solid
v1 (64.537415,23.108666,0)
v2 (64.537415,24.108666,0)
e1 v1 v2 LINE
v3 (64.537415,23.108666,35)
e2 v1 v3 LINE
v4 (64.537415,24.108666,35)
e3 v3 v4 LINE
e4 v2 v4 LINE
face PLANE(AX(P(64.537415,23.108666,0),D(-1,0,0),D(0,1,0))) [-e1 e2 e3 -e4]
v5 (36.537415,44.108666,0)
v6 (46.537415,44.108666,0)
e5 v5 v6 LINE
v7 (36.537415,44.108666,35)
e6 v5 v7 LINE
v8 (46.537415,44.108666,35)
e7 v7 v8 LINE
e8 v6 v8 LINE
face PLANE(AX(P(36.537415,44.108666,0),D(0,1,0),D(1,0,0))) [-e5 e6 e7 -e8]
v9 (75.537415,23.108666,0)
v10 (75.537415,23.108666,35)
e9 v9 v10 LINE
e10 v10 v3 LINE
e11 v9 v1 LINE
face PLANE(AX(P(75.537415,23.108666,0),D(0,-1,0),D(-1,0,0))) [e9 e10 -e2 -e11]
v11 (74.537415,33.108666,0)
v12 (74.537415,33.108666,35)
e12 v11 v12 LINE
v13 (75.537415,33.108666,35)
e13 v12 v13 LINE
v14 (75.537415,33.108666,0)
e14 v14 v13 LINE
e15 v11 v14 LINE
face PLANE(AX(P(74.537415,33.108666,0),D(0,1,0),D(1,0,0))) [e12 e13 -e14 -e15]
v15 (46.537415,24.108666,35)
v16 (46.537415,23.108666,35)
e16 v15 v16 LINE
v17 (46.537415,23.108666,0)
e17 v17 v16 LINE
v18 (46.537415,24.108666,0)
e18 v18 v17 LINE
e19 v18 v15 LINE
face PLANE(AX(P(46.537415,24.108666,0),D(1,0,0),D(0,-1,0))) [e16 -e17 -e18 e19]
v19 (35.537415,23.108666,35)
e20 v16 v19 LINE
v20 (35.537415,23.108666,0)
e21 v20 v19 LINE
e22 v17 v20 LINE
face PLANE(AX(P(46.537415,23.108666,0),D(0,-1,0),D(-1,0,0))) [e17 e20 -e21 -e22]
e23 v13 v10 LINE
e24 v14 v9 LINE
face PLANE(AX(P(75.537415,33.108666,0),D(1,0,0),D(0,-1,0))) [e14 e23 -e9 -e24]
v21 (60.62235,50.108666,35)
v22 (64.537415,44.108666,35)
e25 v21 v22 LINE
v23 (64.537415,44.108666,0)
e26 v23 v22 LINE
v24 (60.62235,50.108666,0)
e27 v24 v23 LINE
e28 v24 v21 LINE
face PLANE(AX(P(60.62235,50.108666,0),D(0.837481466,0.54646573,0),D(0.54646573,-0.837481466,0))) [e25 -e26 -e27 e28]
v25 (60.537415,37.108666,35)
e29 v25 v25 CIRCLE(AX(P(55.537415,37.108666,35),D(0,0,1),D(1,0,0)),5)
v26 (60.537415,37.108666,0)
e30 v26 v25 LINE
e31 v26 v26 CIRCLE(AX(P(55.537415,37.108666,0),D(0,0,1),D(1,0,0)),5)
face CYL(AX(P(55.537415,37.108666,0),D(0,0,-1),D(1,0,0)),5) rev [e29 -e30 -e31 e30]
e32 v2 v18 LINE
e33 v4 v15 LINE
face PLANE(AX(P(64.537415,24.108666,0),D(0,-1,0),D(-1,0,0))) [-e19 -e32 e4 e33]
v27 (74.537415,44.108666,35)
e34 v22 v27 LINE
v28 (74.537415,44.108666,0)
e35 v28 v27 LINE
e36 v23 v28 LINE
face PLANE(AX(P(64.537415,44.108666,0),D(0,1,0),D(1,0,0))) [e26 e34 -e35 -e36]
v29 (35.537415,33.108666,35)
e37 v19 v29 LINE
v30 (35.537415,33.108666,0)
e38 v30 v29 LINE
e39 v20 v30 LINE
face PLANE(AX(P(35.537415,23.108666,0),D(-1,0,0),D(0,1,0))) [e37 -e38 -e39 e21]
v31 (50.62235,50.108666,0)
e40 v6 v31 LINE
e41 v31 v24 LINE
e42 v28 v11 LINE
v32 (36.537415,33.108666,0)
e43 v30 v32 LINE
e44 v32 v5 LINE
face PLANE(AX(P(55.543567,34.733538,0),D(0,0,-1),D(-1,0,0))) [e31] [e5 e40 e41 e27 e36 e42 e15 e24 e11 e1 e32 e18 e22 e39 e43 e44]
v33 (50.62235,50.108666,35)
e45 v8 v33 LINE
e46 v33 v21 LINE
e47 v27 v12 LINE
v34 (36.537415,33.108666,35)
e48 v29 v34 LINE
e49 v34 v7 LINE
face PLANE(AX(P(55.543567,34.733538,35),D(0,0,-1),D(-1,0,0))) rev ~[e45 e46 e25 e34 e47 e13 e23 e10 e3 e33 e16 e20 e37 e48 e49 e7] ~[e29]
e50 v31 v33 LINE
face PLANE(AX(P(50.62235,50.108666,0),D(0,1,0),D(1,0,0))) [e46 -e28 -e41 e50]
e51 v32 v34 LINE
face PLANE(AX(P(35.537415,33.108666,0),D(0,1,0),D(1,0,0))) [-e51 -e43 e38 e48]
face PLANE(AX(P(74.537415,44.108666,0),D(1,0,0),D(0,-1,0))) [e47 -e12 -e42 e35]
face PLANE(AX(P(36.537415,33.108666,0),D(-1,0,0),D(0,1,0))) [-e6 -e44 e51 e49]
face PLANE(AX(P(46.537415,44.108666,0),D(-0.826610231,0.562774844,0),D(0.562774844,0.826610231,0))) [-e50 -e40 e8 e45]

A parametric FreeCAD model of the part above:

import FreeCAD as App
import Part
import Sketcher
from FreeCAD import Vector
Q = App.Units.Quantity


def add_polygon(sketch, points):
    """Adds a closed chain of lines whose ends are joined by coincident constraints."""
    first, n = sketch.GeometryCount, len(points)
    for a, b in zip(points, points[1:] + points[:1]):
        sketch.addGeometry(Part.LineSegment(App.Vector(*a, 0), App.Vector(*b, 0)), False)
    for i in range(n):
        sketch.addConstraint(Sketcher.Constraint("Coincident", first + i, 2, first + (i + 1) % n, 1))

doc = App.newDocument("Part")
params = doc.addObject("Spreadsheet::Sheet", "Params")
for row, (alias, value) in enumerate([
    ("sketch1_diameter", "10 mm"),
    ("sketch1_width", "11 mm"),
    ("sketch1_width2", "18 mm"),
    ("sketch1_width3", "1 mm"),
    ("pad1_length", "35 mm"),
], start=1):
    params.set(f"A{row}", alias)
    params.set(f"B{row}", "=" + value)
    params.setAlias(f"B{row}", alias)

body = doc.addObject("PartDesign::Body", "Body")

sketch1 = body.newObject("Sketcher::SketchObject", "Sketch")
sketch1.AttachmentSupport = (doc.getObject("XY_Plane"), [""])
sketch1.MapMode = "FlatFace"
add_polygon(sketch1, [(35.5, 33.1), (35.5, 23.1), (46.5, 23.1), (46.5, 24.1), (64.5, 24.1), (64.5, 23.1), (75.5, 23.1), (75.5, 33.1), (74.5, 33.1), (74.5, 44.1), (64.5, 44.1), (60.6, 50.1), (50.6, 50.1), (46.5, 44.1), (36.5, 44.1), (36.5, 33.1)])
sketch1.addGeometry(Part.Circle(Vector(55.5, 37.1, 0), Vector(0, 0, 1), 5), False)
sketch1.addConstraint([
    Sketcher.Constraint("Vertical", 0),
    Sketcher.Constraint("Horizontal", 1),
    Sketcher.Constraint("Vertical", 2),
    Sketcher.Constraint("Horizontal", 3),
    Sketcher.Constraint("Vertical", 4),
    Sketcher.Constraint("Horizontal", 5),
    Sketcher.Constraint("Vertical", 6),
    Sketcher.Constraint("Horizontal", 7),
    Sketcher.Constraint("Vertical", 8),
    Sketcher.Constraint("Horizontal", 9),
    Sketcher.Constraint("Horizontal", 11),
    Sketcher.Constraint("Horizontal", 13),
    Sketcher.Constraint("Vertical", 14),
    Sketcher.Constraint("Horizontal", 15),
    Sketcher.Constraint("Horizontal", 1, 2, 4, 2),
    Sketcher.Constraint("Horizontal", 9, 2, 12, 2),
    Sketcher.Constraint("Horizontal", 7, 2, 14, 2),
    Sketcher.Constraint("Vertical", 4, 2, 9, 2),
    Sketcher.Constraint("Vertical", 2, 2, 12, 2),
    Sketcher.Constraint("Equal", 1, 5),
    Sketcher.Constraint("Equal", 9, 11),
    Sketcher.Constraint("Equal", 11, 13),
    Sketcher.Constraint("Equal", 13, 0),
    Sketcher.Constraint("Equal", 15, 2),
    Sketcher.Constraint("Equal", 5, 8),
    Sketcher.Constraint("Diameter", 16, Q("10 mm")),
    Sketcher.Constraint("DistanceX", 1, 1, 1, 2, Q("11 mm")),
    Sketcher.Constraint("DistanceX", 3, 1, 3, 2, Q("18 mm")),
    Sketcher.Constraint("DistanceX", 7, 2, 7, 1, Q("1 mm")),
    Sketcher.Constraint("DistanceX", 0, 2, 16, 3, Q("20 mm")),
    Sketcher.Constraint("DistanceY", 0, 2, 16, 3, Q("14 mm")),
    Sketcher.Constraint("DistanceY", 9, 2, 10, 2, Q("6 mm")),
    Sketcher.Constraint("Distance", 12, Q("7.25856 mm")),
    Sketcher.Constraint("DistanceX", -1, 1, 10, 2, Q("60.62235 mm")),
    Sketcher.Constraint("DistanceY", -1, 1, 16, 3, Q("37.108666 mm")),
])
sketch1.setExpression("Constraints[41]", "Params.sketch1_diameter")
sketch1.setExpression("Constraints[42]", "Params.sketch1_width")
sketch1.setExpression("Constraints[43]", "Params.sketch1_width2")
sketch1.setExpression("Constraints[44]", "Params.sketch1_width3")
pad1 = body.newObject("PartDesign::Pad", "Pad")
pad1.Profile = sketch1
pad1.setExpression("Length", "Params.pad1_length")

doc.recompute()
